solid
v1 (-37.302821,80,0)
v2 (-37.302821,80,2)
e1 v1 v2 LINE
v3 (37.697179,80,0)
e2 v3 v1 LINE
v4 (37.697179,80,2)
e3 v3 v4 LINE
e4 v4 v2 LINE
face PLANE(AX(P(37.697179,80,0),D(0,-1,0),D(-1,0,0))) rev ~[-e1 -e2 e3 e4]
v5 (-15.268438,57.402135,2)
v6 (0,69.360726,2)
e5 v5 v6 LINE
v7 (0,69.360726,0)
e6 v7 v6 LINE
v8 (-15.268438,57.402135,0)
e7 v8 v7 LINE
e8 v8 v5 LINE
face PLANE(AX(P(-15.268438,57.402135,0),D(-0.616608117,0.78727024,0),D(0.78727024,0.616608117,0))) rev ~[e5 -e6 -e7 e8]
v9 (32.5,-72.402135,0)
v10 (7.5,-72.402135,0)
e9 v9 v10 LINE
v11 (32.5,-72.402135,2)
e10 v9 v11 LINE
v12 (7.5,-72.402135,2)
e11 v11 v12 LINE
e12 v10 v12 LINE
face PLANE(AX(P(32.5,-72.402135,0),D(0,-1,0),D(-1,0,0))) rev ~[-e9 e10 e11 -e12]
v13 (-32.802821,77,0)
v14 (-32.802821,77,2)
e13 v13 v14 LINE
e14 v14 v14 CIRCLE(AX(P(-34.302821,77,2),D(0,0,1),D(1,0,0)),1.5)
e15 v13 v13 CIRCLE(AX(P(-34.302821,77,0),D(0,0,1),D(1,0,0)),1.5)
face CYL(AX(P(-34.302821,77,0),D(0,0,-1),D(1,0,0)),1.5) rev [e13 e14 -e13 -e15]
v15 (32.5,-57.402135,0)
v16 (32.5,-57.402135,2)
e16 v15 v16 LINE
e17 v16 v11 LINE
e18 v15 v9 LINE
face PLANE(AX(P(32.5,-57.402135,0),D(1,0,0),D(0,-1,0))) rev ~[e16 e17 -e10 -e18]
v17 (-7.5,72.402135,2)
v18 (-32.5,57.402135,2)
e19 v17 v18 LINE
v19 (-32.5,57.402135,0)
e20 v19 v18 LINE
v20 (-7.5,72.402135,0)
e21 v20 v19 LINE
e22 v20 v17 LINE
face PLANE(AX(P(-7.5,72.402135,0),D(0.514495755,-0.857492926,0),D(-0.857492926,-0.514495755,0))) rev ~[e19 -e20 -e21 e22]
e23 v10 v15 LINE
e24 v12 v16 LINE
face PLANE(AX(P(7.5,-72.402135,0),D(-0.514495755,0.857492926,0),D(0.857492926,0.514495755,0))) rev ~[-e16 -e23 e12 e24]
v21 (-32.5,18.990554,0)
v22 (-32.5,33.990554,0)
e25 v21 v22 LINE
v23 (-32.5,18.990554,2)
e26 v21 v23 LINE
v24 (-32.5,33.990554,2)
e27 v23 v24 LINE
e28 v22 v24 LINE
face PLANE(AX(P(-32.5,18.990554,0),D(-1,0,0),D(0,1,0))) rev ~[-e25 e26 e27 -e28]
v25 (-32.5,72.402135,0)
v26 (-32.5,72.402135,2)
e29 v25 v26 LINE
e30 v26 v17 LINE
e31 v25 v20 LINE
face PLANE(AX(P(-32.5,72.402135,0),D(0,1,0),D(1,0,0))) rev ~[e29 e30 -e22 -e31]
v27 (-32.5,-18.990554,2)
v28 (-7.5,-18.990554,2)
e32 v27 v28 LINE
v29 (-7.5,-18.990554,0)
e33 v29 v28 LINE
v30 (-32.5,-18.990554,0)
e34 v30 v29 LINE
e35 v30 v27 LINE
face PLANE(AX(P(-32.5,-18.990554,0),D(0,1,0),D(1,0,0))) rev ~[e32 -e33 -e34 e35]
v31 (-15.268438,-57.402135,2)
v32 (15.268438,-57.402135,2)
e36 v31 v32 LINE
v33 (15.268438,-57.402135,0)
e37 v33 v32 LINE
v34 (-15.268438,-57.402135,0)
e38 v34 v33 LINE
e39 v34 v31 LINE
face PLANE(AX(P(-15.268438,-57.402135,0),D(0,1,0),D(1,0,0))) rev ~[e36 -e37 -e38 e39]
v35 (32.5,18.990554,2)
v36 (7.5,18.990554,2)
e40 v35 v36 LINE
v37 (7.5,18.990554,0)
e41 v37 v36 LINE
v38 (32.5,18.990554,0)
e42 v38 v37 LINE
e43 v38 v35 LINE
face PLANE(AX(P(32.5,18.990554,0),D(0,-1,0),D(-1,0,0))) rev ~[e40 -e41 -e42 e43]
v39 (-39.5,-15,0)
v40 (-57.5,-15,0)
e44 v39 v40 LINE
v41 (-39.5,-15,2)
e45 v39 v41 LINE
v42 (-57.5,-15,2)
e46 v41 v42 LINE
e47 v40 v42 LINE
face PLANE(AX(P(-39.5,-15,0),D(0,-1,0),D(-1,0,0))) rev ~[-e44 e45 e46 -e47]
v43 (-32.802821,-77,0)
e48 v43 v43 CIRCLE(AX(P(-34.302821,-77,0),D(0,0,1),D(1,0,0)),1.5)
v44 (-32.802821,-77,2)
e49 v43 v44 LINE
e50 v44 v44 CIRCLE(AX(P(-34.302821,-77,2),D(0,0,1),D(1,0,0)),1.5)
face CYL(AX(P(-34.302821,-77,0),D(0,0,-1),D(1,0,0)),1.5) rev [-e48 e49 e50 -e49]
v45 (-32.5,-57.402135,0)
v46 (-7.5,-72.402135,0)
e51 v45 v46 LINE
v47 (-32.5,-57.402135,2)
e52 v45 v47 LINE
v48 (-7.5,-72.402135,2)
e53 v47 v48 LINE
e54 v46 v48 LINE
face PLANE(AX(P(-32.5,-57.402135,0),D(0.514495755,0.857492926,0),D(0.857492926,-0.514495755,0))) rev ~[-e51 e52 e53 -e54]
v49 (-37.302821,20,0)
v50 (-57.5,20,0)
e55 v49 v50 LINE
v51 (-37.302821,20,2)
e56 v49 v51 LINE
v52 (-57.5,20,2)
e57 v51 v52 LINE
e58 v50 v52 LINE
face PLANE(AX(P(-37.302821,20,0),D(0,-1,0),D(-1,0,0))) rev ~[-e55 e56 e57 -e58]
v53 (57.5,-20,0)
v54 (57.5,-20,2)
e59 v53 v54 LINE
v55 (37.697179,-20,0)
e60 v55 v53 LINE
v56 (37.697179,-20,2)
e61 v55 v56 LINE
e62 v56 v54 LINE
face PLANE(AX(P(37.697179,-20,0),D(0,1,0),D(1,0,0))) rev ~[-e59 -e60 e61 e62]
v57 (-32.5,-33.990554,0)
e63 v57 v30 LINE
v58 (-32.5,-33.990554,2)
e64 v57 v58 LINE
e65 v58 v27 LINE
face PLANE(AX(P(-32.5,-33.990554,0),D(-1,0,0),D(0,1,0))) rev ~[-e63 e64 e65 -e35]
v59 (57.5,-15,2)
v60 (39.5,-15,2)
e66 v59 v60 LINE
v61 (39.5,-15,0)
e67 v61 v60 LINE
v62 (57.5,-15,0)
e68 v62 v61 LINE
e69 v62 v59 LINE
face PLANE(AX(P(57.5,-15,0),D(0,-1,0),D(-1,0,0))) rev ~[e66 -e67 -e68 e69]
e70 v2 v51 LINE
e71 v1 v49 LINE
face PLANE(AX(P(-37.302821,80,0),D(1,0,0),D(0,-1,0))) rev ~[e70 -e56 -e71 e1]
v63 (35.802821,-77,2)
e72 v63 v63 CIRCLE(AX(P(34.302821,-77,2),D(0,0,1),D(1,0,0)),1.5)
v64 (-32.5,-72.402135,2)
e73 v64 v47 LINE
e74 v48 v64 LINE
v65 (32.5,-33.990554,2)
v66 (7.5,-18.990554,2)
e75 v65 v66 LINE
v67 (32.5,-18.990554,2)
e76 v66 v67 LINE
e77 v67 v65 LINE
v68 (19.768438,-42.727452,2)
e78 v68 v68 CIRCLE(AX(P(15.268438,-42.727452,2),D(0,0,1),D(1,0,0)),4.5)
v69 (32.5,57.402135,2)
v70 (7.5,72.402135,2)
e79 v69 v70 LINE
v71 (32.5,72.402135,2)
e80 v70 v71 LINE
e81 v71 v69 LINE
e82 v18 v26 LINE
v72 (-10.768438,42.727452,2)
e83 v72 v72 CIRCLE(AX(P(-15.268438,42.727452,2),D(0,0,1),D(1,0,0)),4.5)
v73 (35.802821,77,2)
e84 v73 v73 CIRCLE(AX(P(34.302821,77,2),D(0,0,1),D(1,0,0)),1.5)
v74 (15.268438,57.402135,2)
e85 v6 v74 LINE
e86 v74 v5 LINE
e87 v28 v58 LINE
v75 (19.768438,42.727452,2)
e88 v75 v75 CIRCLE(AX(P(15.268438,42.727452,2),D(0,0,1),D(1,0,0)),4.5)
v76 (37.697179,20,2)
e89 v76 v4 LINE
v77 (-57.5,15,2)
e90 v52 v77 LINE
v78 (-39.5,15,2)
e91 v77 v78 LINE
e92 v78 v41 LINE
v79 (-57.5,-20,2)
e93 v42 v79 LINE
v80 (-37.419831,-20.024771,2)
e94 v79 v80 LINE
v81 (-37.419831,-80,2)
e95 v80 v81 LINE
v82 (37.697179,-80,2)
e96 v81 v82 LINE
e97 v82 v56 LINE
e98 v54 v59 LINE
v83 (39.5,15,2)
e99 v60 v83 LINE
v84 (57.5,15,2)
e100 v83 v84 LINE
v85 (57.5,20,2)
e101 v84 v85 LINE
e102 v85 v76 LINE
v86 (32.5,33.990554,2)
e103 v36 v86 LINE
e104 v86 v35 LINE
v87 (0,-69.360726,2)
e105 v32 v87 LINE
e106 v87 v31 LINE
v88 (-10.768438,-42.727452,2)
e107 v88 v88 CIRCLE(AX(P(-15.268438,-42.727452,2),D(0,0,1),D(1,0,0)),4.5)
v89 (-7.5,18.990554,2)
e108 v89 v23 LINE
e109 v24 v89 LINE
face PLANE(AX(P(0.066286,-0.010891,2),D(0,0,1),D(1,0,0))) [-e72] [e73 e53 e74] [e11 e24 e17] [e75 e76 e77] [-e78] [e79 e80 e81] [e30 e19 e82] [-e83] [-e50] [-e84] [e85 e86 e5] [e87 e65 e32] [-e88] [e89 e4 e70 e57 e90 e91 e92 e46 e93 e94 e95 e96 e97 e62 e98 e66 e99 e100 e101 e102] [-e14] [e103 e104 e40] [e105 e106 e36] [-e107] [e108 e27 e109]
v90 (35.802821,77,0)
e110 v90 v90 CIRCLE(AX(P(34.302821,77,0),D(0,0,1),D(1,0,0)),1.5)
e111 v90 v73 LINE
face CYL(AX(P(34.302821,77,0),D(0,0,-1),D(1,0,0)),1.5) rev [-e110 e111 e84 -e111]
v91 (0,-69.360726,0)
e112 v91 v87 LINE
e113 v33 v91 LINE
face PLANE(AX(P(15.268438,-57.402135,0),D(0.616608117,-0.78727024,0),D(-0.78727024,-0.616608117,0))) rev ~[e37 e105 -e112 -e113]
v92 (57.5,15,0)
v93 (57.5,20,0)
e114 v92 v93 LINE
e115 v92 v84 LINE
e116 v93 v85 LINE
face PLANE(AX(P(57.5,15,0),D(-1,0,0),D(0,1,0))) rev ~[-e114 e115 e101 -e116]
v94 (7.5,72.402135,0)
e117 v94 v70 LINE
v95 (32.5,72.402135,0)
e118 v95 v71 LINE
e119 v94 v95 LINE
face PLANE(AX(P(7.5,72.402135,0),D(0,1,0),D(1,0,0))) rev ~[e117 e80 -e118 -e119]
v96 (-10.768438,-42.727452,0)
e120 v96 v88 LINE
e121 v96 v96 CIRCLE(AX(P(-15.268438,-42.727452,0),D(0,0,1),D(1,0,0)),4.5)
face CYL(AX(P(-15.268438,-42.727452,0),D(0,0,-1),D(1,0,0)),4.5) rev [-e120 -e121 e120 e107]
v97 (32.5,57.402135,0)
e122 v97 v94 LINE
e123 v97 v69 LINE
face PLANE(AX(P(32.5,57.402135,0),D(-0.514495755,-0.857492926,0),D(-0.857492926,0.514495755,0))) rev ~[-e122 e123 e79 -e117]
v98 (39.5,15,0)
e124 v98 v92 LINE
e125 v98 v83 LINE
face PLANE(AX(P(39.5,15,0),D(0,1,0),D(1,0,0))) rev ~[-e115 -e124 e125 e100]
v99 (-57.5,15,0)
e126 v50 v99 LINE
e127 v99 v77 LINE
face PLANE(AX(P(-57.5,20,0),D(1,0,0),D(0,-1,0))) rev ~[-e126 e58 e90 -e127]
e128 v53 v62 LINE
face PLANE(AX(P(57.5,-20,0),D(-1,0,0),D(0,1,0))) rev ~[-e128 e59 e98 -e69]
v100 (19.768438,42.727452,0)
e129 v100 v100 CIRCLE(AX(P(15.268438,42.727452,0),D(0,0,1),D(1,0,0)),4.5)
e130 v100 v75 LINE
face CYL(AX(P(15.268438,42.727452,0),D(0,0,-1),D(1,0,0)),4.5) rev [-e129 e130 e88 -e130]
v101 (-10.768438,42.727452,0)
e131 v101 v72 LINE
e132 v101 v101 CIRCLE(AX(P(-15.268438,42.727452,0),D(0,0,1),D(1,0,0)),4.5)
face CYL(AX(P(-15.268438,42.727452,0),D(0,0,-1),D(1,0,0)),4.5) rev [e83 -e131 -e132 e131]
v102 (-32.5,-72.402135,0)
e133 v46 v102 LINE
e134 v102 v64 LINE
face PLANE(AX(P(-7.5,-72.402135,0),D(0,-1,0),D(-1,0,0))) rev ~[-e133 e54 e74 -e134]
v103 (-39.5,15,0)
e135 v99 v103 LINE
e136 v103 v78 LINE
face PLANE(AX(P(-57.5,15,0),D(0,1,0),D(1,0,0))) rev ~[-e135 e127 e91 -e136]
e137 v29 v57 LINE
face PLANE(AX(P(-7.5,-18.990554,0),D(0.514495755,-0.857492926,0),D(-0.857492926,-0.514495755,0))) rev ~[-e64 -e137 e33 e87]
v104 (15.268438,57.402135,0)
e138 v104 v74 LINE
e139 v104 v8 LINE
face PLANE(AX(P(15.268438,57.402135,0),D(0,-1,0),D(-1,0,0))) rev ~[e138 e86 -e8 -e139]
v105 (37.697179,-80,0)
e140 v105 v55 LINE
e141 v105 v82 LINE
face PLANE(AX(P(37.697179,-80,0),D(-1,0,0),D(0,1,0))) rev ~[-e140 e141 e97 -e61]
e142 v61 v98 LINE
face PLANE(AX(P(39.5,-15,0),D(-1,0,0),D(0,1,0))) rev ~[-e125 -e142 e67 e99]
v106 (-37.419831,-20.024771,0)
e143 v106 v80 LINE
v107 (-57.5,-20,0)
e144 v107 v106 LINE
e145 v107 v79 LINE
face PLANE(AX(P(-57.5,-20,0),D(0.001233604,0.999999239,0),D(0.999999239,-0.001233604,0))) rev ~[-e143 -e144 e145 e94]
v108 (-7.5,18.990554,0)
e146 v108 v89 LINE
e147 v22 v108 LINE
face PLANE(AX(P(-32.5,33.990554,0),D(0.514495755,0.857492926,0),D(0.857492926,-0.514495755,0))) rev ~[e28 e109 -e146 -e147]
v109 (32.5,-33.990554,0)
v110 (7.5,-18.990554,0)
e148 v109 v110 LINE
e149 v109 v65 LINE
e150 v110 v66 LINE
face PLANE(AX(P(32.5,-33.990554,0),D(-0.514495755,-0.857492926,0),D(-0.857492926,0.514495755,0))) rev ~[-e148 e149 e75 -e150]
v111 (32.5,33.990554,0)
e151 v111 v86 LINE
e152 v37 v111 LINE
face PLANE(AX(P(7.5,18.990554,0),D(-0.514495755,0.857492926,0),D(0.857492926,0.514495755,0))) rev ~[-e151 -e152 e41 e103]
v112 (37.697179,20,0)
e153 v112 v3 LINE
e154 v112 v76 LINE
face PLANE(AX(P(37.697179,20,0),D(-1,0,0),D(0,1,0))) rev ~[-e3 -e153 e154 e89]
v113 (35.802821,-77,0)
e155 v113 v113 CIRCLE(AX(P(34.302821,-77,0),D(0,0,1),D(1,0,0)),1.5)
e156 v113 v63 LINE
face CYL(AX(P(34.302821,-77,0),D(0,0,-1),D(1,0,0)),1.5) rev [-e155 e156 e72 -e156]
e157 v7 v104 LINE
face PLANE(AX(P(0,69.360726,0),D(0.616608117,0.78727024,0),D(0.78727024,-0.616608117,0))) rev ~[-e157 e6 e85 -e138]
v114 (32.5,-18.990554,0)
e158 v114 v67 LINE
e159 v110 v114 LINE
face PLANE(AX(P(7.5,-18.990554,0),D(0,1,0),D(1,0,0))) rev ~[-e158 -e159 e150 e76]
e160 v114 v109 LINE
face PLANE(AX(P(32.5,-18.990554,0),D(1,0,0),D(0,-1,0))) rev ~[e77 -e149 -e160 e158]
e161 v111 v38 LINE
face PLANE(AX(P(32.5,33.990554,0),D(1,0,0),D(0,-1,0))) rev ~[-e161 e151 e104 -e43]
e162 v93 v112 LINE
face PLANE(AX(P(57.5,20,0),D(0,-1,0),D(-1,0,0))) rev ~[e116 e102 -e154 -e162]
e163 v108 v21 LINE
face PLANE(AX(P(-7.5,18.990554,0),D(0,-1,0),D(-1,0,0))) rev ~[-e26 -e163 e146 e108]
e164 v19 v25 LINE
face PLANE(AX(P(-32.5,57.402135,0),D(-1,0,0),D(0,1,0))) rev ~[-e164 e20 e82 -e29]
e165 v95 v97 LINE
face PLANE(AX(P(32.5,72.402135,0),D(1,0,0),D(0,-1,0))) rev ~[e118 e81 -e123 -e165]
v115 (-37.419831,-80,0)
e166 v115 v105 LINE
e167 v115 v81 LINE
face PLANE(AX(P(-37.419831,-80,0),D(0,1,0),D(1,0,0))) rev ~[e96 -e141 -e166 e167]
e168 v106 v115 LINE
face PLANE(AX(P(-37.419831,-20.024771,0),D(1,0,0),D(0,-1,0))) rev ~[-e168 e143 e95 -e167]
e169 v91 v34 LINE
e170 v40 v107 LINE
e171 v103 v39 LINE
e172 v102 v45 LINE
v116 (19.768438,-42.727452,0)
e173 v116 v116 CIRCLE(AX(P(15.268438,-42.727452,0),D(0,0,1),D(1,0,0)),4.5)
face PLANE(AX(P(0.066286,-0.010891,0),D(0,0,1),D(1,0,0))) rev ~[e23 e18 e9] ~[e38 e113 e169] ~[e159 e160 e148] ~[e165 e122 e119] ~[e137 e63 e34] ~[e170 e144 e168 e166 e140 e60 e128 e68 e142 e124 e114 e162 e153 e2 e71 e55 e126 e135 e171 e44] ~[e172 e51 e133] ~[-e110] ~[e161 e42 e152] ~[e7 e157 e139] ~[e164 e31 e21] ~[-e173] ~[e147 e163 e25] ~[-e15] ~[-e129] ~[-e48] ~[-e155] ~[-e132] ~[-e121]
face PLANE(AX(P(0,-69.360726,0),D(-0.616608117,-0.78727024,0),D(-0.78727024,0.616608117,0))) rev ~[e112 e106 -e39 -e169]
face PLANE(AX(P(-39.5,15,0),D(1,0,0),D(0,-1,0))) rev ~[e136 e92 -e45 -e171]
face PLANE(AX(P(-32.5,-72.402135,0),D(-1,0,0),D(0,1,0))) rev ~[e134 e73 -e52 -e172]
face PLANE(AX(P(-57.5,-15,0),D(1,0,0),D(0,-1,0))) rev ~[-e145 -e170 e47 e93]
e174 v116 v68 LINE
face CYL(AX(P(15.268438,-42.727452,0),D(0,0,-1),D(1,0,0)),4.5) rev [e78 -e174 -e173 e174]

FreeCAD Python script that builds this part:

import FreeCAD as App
import Part
import Sketcher


def add_polygon(sketch, points):
    """Adds a closed chain of lines whose ends are joined by coincident constraints."""
    first, n = sketch.GeometryCount, len(points)
    for a, b in zip(points, points[1:] + points[:1]):
        sketch.addGeometry(Part.LineSegment(App.Vector(*a, 0), App.Vector(*b, 0)), False)
    for i in range(n):
        sketch.addConstraint(Sketcher.Constraint("Coincident", first + i, 2, first + (i + 1) % n, 1))

doc = App.newDocument("Part")
body = doc.addObject("PartDesign::Body", "Body")

# Sketch on XY plane
sketch1 = body.newObject("Sketcher::SketchObject", "Sketch")
sketch1.AttachmentSupport = (doc.getObject("XY_Plane"), [""])
sketch1.MapMode = "FlatFace"
add_polygon(sketch1, [(-37.3, 20), (-57.5, 20), (-57.5, 15), (-39.5, 15), (-39.5, -15), (-57.5, -15), (-57.5, -20), (-37.4, -20), (-37.4, -80), (37.7, -80), (37.7, -20), (57.5, -20), (57.5, -15), (39.5, -15), (39.5, 15), (57.5, 15), (57.5, 20), (37.7, 20), (37.7, 80), (-37.3, 80)])  # lines 0-19
sketch1.addGeometry(Part.Circle(App.Vector(-34.3, -77, 0), App.Vector(0, 0, 1), 1.5), False)  # 20
add_polygon(sketch1, [(-7.5, -72.4), (-32.5, -72.4), (-32.5, -57.4)])  # lines 21-23
sketch1.addGeometry(Part.Circle(App.Vector(-15.3, -42.7, 0), App.Vector(0, 0, 1), 4.5), False)  # 24
add_polygon(sketch1, [(-32.5, -34), (-32.5, -19), (-7.5, -19)])  # lines 25-27
add_polygon(sketch1, [(15.3, -57.4), (0, -69.4), (-15.3, -57.4)])  # lines 28-30
sketch1.addGeometry(Part.Circle(App.Vector(15.3, -42.7, 0), App.Vector(0, 0, 1), 4.5), False)  # 31
add_polygon(sketch1, [(7.5, -72.4), (32.5, -57.4), (32.5, -72.4)])  # lines 32-34
sketch1.addGeometry(Part.Circle(App.Vector(34.3, -77, 0), App.Vector(0, 0, 1), 1.5), False)  # 35
add_polygon(sketch1, [(32.5, -19), (32.5, -34), (7.5, -19)])  # lines 36-38
add_polygon(sketch1, [(-7.5, 19), (-32.5, 19), (-32.5, 34)])  # lines 39-41
sketch1.addGeometry(Part.Circle(App.Vector(-34.3, 77, 0), App.Vector(0, 0, 1), 1.5), False)  # 42
add_polygon(sketch1, [(-32.5, 72.4), (-7.5, 72.4), (-32.5, 57.4)])  # lines 43-45
sketch1.addGeometry(Part.Circle(App.Vector(-15.3, 42.7, 0), App.Vector(0, 0, 1), 4.5), False)  # 46
add_polygon(sketch1, [(32.5, 34), (32.5, 19), (7.5, 19)])  # lines 47-49
sketch1.addGeometry(Part.Circle(App.Vector(15.3, 42.7, 0), App.Vector(0, 0, 1), 4.5), False)  # 50
add_polygon(sketch1, [(0, 69.4), (15.3, 57.4), (-15.3, 57.4)])  # lines 51-53
add_polygon(sketch1, [(7.5, 72.4), (32.5, 72.4), (32.5, 57.4)])  # lines 54-56
sketch1.addGeometry(Part.Circle(App.Vector(34.3, 77, 0), App.Vector(0, 0, 1), 1.5), False)  # 57
sketch1.addConstraint(Sketcher.Constraint("Horizontal", 0))
sketch1.addConstraint(Sketcher.Constraint("Vertical", 1))
sketch1.addConstraint(Sketcher.Constraint("Horizontal", 2))
sketch1.addConstraint(Sketcher.Constraint("Vertical", 3))
sketch1.addConstraint(Sketcher.Constraint("Horizontal", 4))
sketch1.addConstraint(Sketcher.Constraint("Vertical", 5))
sketch1.addConstraint(Sketcher.Constraint("Vertical", 7))
sketch1.addConstraint(Sketcher.Constraint("Horizontal", 8))
sketch1.addConstraint(Sketcher.Constraint("Vertical", 9))
sketch1.addConstraint(Sketcher.Constraint("Horizontal", 10))
sketch1.addConstraint(Sketcher.Constraint("Vertical", 11))
sketch1.addConstraint(Sketcher.Constraint("Horizontal", 12))
sketch1.addConstraint(Sketcher.Constraint("Vertical", 13))
sketch1.addConstraint(Sketcher.Constraint("Horizontal", 14))
sketch1.addConstraint(Sketcher.Constraint("Vertical", 15))
sketch1.addConstraint(Sketcher.Constraint("Horizontal", 16))
sketch1.addConstraint(Sketcher.Constraint("Vertical", 17))
sketch1.addConstraint(Sketcher.Constraint("Horizontal", 18))
sketch1.addConstraint(Sketcher.Constraint("Vertical", 19))
sketch1.addConstraint(Sketcher.Constraint("Horizontal", 21))
sketch1.addConstraint(Sketcher.Constraint("Vertical", 22))
sketch1.addConstraint(Sketcher.Constraint("Vertical", 25))
sketch1.addConstraint(Sketcher.Constraint("Horizontal", 26))
sketch1.addConstraint(Sketcher.Constraint("Horizontal", 30))
sketch1.addConstraint(Sketcher.Constraint("Vertical", 33))
sketch1.addConstraint(Sketcher.Constraint("Horizontal", 34))
sketch1.addConstraint(Sketcher.Constraint("Vertical", 36))
sketch1.addConstraint(Sketcher.Constraint("Horizontal", 38))
sketch1.addConstraint(Sketcher.Constraint("Horizontal", 39))
sketch1.addConstraint(Sketcher.Constraint("Vertical", 40))
sketch1.addConstraint(Sketcher.Constraint("Horizontal", 43))
sketch1.addConstraint(Sketcher.Constraint("Vertical", 45))
sketch1.addConstraint(Sketcher.Constraint("Vertical", 47))
sketch1.addConstraint(Sketcher.Constraint("Horizontal", 48))
sketch1.addConstraint(Sketcher.Constraint("Horizontal", 52))
sketch1.addConstraint(Sketcher.Constraint("Horizontal", 54))
sketch1.addConstraint(Sketcher.Constraint("Vertical", 55))
sketch1.addConstraint(Sketcher.Constraint("Equal", 24, 31))
sketch1.addConstraint(Sketcher.Constraint("Equal", 20, 35))
sketch1.addConstraint(Sketcher.Constraint("Equal", 35, 42))
sketch1.addConstraint(Sketcher.Constraint("Equal", 31, 46))
sketch1.addConstraint(Sketcher.Constraint("Equal", 46, 50))
sketch1.addConstraint(Sketcher.Constraint("Equal", 42, 57))
sketch1.addConstraint(Sketcher.Constraint("Symmetric", 35, 3, 42, 3, -1, 1))
sketch1.addConstraint(Sketcher.Constraint("Symmetric", 31, 3, 46, 3, -1, 1))
sketch1.addConstraint(Sketcher.Constraint("Symmetric", 24, 3, 50, 3, -1, 1))
sketch1.addConstraint(Sketcher.Constraint("Symmetric", 20, 3, 57, 3, -1, 1))
sketch1.addConstraint(Sketcher.Constraint("Symmetric", 0, 2, 10, 2, -1, 1))
sketch1.addConstraint(Sketcher.Constraint("Symmetric", 2, 2, 12, 2, -1, 1))
sketch1.addConstraint(Sketcher.Constraint("Symmetric", 4, 2, 14, 2, -1, 1))
sketch1.addConstraint(Sketcher.Constraint("Symmetric", 38, 2, 39, 2, -1, 1))
sketch1.addConstraint(Sketcher.Constraint("Symmetric", 34, 2, 43, 2, -1, 1))
sketch1.addConstraint(Sketcher.Constraint("Symmetric", 32, 2, 44, 2, -1, 1))
sketch1.addConstraint(Sketcher.Constraint("Symmetric", 25, 2, 47, 2, -1, 1))
sketch1.addConstraint(Sketcher.Constraint("Symmetric", 29, 2, 51, 2, -1, 1))
sketch1.addConstraint(Sketcher.Constraint("Symmetric", 28, 2, 53, 2, -1, 1))
sketch1.addConstraint(Sketcher.Constraint("Symmetric", 21, 2, 54, 2, -1, 1))
sketch1.addConstraint(Sketcher.Constraint("Symmetric", 24, 3, 31, 3, -2))
sketch1.addConstraint(Sketcher.Constraint("Symmetric", 20, 3, 35, 3, -2))
sketch1.addConstraint(Sketcher.Constraint("Symmetric", 5, 2, 10, 2, -2))
sketch1.addConstraint(Sketcher.Constraint("Symmetric", 22, 2, 32, 2, -2))
sketch1.addConstraint(Sketcher.Constraint("Symmetric", 23, 2, 34, 2, -2))
sketch1.addConstraint(Sketcher.Constraint("Symmetric", 27, 2, 36, 2, -2))
sketch1.addConstraint(Sketcher.Constraint("Symmetric", 26, 2, 37, 2, -2))
sketch1.addConstraint(Sketcher.Constraint("Symmetric", 9, 2, 16, 2, -1))
sketch1.addConstraint(Sketcher.Constraint("PointOnObject", 28, 2, -2))
sketch1.addConstraint(Sketcher.Constraint("Parallel", 27, 32))
sketch1.addConstraint(Sketcher.Constraint("Parallel", 37, 41))
sketch1.addConstraint(Sketcher.Constraint("Parallel", 44, 49))
sketch1.addConstraint(Sketcher.Constraint("Parallel", 28, 53))
sketch1.addConstraint(Sketcher.Constraint("Parallel", 41, 56))
sketch1.addConstraint(Sketcher.Constraint("Horizontal", 4, 2, 11, 2))
sketch1.addConstraint(Sketcher.Constraint("Horizontal", 22, 2, 29, 2))
sketch1.addConstraint(Sketcher.Constraint("Horizontal", 40, 2, 49, 2))
sketch1.addConstraint(Sketcher.Constraint("Horizontal", 52, 2, 55, 2))
sketch1.addConstraint(Sketcher.Constraint("Vertical", 22, 2, 25, 2))
sketch1.addConstraint(Sketcher.Constraint("Vertical", 23, 2, 26, 2))
sketch1.addConstraint(Sketcher.Constraint("Vertical", 46, 3, 29, 2))
sketch1.addConstraint(Sketcher.Constraint("Vertical", 50, 3, 30, 2))
sketch1.addConstraint(Sketcher.Constraint("Vertical", 26, 2, 41, 2))
sketch1.addConstraint(Sketcher.Constraint("Equal", 9, 17))
sketch1.addConstraint(Sketcher.Constraint("Diameter", 20, 3.0))
sketch1.addConstraint(Sketcher.Constraint("Diameter", 24, 9.0))
sketch1.addConstraint(Sketcher.Constraint("DistanceX", 2, 1, 2, 2, 18.0))
sketch1.addConstraint(Sketcher.Constraint("DistanceX", 18, 2, 18, 1, 75.0))
sketch1.addConstraint(Sketcher.Constraint("DistanceX", 21, 2, 21, 1, 25.0))
sketch1.addConstraint(Sketcher.Constraint("DistanceY", 1, 2, 1, 1, 5.0))
sketch1.addConstraint(Sketcher.Constraint("DistanceY", 3, 2, 3, 1, 30.0))
sketch1.addConstraint(Sketcher.Constraint("DistanceY", 9, 1, 9, 2, 60.0))
sketch1.addConstraint(Sketcher.Constraint("DistanceY", 22, 1, 22, 2, 15.0))
sketch1.addConstraint(Sketcher.Constraint("DistanceY", 20, 3, -1, 1, 77.0))
sketch1.addConstraint(Sketcher.Constraint("DistanceX", 20, 3, 8, 2, 72.0))
sketch1.addConstraint(Sketcher.Constraint("DistanceX", 3, 2, 25, 2, 7.0))
sketch1.addConstraint(Sketcher.Constraint("DistanceX", 23, 2, 34, 2, 15.0))
sketch1.addConstraint(Sketcher.Constraint("DistanceX", 0, 2, 0, 1, 20.197179))
sketch1.addConstraint(Sketcher.Constraint("DistanceX", 8, 1, 8, 2, 75.11701))
sketch1.addConstraint(Sketcher.Constraint("DistanceY", 7, 2, 7, 1, 59.975229))
sketch1.addConstraint(Sketcher.Constraint("DistanceY", 24, 3, 25, 2, 23.736898))
sketch1.addConstraint(Sketcher.Constraint("Distance", 28, 19.394151))
sketch1.addConstraint(Sketcher.Constraint("DistanceX", 30, 1, 30, 2, 30.536876))
sketch1.addConstraint(Sketcher.Constraint("DistanceY", 24, 3, 42, 3, 119.727452))
sketch1.addConstraint(Sketcher.Constraint("DistanceY", 22, 2, 27, 2, 23.411581))
pad1 = body.newObject("PartDesign::Pad", "Pad")
pad1.Profile = sketch1
pad1.Length = 2

doc.recompute()
